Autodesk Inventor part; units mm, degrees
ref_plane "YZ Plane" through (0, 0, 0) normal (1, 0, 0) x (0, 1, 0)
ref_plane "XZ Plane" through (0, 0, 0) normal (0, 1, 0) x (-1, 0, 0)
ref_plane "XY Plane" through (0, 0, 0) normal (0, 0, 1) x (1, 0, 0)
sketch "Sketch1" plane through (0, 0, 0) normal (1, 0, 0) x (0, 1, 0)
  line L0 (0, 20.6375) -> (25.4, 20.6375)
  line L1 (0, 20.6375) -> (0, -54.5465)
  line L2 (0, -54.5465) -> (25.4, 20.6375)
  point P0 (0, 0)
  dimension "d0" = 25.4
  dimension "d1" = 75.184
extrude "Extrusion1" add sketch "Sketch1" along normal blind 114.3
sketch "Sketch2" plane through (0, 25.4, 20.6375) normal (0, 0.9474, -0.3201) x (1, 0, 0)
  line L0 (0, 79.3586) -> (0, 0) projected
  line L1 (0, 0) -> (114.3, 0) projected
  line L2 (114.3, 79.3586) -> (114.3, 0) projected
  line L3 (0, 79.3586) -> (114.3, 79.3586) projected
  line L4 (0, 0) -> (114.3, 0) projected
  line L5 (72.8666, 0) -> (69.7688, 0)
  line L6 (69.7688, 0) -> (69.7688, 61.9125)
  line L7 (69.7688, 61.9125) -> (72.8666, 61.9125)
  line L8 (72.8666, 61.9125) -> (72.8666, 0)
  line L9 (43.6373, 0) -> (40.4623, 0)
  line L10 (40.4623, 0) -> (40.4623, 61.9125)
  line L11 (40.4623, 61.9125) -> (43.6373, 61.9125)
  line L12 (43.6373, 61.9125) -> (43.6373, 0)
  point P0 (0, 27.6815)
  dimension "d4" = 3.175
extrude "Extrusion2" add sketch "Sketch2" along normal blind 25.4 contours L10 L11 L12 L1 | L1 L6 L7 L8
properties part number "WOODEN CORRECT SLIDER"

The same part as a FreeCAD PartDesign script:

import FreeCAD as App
import Part
import Sketcher
Q = App.Units.Quantity

doc = App.newDocument("Part")
body = doc.addObject("PartDesign::Body", "Body")

# Sketch on YZ plane
sketch1 = body.newObject("Sketcher::SketchObject", "Sketch")
sketch1.AttachmentSupport = (doc.getObject("YZ_Plane"), [""])
sketch1.MapMode = "FlatFace"
sketch1.addGeometry([
    Part.LineSegment(App.Vector(25, 21, 0), App.Vector(0, 21, 0)),
    Part.LineSegment(App.Vector(0, 21, 0), App.Vector(0, -55, 0)),
    Part.LineSegment(App.Vector(0, -55, 0), App.Vector(25, 21, 0)),
], False)
sketch1.addConstraint([
    Sketcher.Constraint("Coincident", 0, 2, 1, 1),
    Sketcher.Constraint("Coincident", 1, 2, 2, 1),
    Sketcher.Constraint("Coincident", 2, 2, 0, 1),
    Sketcher.Constraint("Horizontal", 0),
    Sketcher.Constraint("Vertical", 1),
    Sketcher.Constraint("PointOnObject", 0, 2, -2),
    Sketcher.Constraint("DistanceX", 0, 2, 0, 1, Q("1 in")),
    Sketcher.Constraint("DistanceY", 1, 2, 1, 1, Q("2.96 in")),
    Sketcher.Constraint("DistanceY", -1, 1, 0, 2, Q("0.8125 in")),
])
pad1 = body.newObject("PartDesign::Pad", "Pad")
pad1.Profile = sketch1
pad1.Length = Q("4.5 in")

# Sketch on an angled plane
sketch2 = body.newObject("Sketcher::SketchObject", "Sketch001")
sketch2.Placement = App.Placement(App.Vector(0, 25.4, 20.6375), App.Rotation(App.Vector(1, 0, 0), App.Vector(0, -0.320095075, -0.947385425), App.Vector(0, 0.947385425, -0.320095075), "ZXY"))
sketch2.addGeometry([
    Part.LineSegment(App.Vector(40.5, 61.9, 0), App.Vector(40.5, 0, 0)),  # 0
    Part.LineSegment(App.Vector(40.5, 0, 0), App.Vector(43.6, 0, 0)),  # 1
    Part.LineSegment(App.Vector(43.6, 0, 0), App.Vector(43.6, 61.9, 0)),  # 2
    Part.LineSegment(App.Vector(43.6, 61.9, 0), App.Vector(40.5, 61.9, 0)),  # 3
    Part.LineSegment(App.Vector(69.8, 0, 0), App.Vector(72.9, 0, 0)),  # 4
    Part.LineSegment(App.Vector(72.9, 0, 0), App.Vector(72.9, 61.9, 0)),  # 5
    Part.LineSegment(App.Vector(72.9, 61.9, 0), App.Vector(69.8, 61.9, 0)),  # 6
    Part.LineSegment(App.Vector(69.8, 61.9, 0), App.Vector(69.8, 0, 0)),  # 7
], False)
sketch2.addConstraint([
    Sketcher.Constraint("Coincident", 0, 2, 1, 1),
    Sketcher.Constraint("Coincident", 1, 2, 2, 1),
    Sketcher.Constraint("Coincident", 2, 2, 3, 1),
    Sketcher.Constraint("Coincident", 3, 2, 0, 1),
    Sketcher.Constraint("Coincident", 4, 2, 5, 1),
    Sketcher.Constraint("Coincident", 5, 2, 6, 1),
    Sketcher.Constraint("Coincident", 6, 2, 7, 1),
    Sketcher.Constraint("Coincident", 7, 2, 4, 1),
    Sketcher.Constraint("Vertical", 0),
    Sketcher.Constraint("Horizontal", 1),
    Sketcher.Constraint("Vertical", 2),
    Sketcher.Constraint("Horizontal", 3),
    Sketcher.Constraint("Horizontal", 4),
    Sketcher.Constraint("Vertical", 5),
    Sketcher.Constraint("Horizontal", 6),
    Sketcher.Constraint("Vertical", 7),
    Sketcher.Constraint("PointOnObject", 0, 2, -1),
    Sketcher.Constraint("PointOnObject", 4, 2, -1),
    Sketcher.Constraint("Horizontal", 3, 2, 5, 2),
    Sketcher.Constraint("DistanceX", 1, 1, 1, 2, Q("0.125 in")),
    Sketcher.Constraint("DistanceY", 0, 2, 0, 1, Q("2.4375 in")),
    Sketcher.Constraint("DistanceX", -1, 1, 0, 2, Q("1.593 in")),
    Sketcher.Constraint("DistanceX", 4, 1, 4, 2, Q("3.0978 mm")),
    Sketcher.Constraint("DistanceX", -1, 1, 6, 2, Q("2.7468 in")),
])
pad2 = body.newObject("PartDesign::Pad", "Pad001")
pad2.Profile = sketch2
pad2.Length = Q("1 in")

doc.recompute()
